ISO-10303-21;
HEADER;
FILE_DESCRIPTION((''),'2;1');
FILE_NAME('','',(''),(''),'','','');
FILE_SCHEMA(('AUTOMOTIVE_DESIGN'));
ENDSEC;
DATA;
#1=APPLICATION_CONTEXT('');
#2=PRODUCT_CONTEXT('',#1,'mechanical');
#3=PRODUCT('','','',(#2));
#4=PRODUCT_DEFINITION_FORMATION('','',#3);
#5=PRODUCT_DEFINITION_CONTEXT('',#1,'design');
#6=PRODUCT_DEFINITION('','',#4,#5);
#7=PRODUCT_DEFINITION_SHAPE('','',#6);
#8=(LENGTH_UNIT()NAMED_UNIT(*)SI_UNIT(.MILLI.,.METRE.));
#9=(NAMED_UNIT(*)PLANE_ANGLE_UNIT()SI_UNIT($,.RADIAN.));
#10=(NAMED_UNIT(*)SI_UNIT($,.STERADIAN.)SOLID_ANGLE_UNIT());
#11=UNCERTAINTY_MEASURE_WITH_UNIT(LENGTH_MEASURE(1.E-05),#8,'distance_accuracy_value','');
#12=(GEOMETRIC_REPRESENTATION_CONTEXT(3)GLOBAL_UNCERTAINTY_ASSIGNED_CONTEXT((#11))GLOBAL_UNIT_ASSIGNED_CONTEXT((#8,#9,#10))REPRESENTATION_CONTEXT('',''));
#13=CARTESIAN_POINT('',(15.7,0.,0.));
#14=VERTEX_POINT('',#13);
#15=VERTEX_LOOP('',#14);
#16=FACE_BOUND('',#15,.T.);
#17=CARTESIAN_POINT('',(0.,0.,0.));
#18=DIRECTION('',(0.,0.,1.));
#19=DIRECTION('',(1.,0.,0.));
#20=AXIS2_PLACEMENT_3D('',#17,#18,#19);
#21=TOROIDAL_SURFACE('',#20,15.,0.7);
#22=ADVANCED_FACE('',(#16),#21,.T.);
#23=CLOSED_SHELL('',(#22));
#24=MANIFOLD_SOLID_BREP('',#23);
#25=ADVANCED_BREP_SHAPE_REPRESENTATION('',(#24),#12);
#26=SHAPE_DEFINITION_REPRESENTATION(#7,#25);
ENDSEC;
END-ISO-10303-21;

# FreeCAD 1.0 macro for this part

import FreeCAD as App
import Part
import Sketcher

V = App.Vector

doc = App.newDocument("Part")
body = doc.addObject("PartDesign::Body", "Body")

sketch1 = doc.addObject("Sketcher::SketchObject", "Sketch")
body.addObject(sketch1)
sketch1.AttachmentSupport = (doc.XZ_Plane, [""])
sketch1.MapMode = "FlatFace"
sketch1.addGeometry(Part.Circle(V(15, 0, 0), V(0, 0, 1), 0.7), False)
sketch1.addConstraint([
    Sketcher.Constraint("PointOnObject", 0, 3, -1),
    Sketcher.Constraint("Diameter", 0, 1.4),
    Sketcher.Constraint("DistanceX", -1, 1, 0, 3, 15.0),
])
revolution = doc.addObject("PartDesign::Revolution", "Revolution")
body.addObject(revolution)
revolution.Profile = sketch1
revolution.ReferenceAxis = (sketch1, ["V_Axis"])
revolution.Angle = 360

doc.recompute()
